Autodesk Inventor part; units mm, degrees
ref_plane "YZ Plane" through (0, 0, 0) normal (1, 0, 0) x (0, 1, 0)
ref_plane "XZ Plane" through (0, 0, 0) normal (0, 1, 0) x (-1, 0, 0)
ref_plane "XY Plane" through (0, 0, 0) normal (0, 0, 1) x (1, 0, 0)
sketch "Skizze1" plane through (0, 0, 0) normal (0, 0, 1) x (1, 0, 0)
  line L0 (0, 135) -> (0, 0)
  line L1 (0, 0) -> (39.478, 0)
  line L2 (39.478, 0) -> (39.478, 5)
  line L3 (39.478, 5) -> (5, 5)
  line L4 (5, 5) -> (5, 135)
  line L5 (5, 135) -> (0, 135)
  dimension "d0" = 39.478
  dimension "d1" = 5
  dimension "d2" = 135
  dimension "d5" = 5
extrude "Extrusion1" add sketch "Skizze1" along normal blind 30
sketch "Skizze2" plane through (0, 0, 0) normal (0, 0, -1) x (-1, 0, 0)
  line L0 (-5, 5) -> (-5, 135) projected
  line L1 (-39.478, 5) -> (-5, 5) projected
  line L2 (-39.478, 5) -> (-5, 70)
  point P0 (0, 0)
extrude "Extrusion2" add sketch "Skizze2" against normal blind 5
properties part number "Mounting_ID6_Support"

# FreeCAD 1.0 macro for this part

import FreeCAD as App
import Part
import Sketcher

V = App.Vector


def add_polygon(sketch, points):
    """Adds a closed chain of lines whose ends are joined by coincident constraints."""
    first, n = sketch.GeometryCount, len(points)
    for a, b in zip(points, points[1:] + points[:1]):
        sketch.addGeometry(Part.LineSegment(App.Vector(*a, 0), App.Vector(*b, 0)), False)
    for i in range(n):
        sketch.addConstraint(Sketcher.Constraint("Coincident", first + i, 2, first + (i + 1) % n, 1))

doc = App.newDocument("Part")
params = doc.addObject("Spreadsheet::Sheet", "Params")
for row, (alias, value) in enumerate([
    ("sketch1_width", "5 mm"),
    ("sketch1_height", "135 mm"),
    ("pad1_length", "30 mm"),
    ("sketch2_height", "65 mm"),
    ("pad2_length", "5 mm"),
], start=1):
    params.set(f"A{row}", alias)
    params.set(f"B{row}", "=" + value)
    params.setAlias(f"B{row}", alias)

body = doc.addObject("PartDesign::Body", "Body")

# Sketch on XY plane
sketch1 = body.newObject("Sketcher::SketchObject", "Sketch")
sketch1.AttachmentSupport = (doc.getObject("XY_Plane"), [""])
sketch1.MapMode = "FlatFace"
add_polygon(sketch1, [(5, 135), (0, 135), (0, 0), (39, 0), (39, 5), (5, 5)])  # lines 0-5
sketch1.addConstraint([
    Sketcher.Constraint("Horizontal", 0),
    Sketcher.Constraint("Vertical", 1),
    Sketcher.Constraint("Horizontal", 2),
    Sketcher.Constraint("Vertical", 3),
    Sketcher.Constraint("Horizontal", 4),
    Sketcher.Constraint("Vertical", 5),
    Sketcher.Constraint("Coincident", 1, 2, -1, 1),
    Sketcher.Constraint("Equal", 0, 3),
    Sketcher.Constraint("DistanceX", 0, 2, 0, 1, 5.0),
    Sketcher.Constraint("DistanceY", 1, 2, 1, 1, 135.0),
    Sketcher.Constraint("DistanceX", 2, 1, 2, 2, 39.478),
])
sketch1.setExpression("Constraints[14]", "Params.sketch1_width")
sketch1.setExpression("Constraints[15]", "Params.sketch1_height")
pad1 = body.newObject("PartDesign::Pad", "Pad")
pad1.Profile = sketch1
pad1.setExpression("Length", "Params.pad1_length")

# Sketch on XY plane
sketch2 = body.newObject("Sketcher::SketchObject", "Sketch001")
sketch2.AttachmentSupport = (doc.getObject("XY_Plane"), [""])
sketch2.MapMode = "FlatFace"
add_polygon(sketch2, [(39, 5), (5, 5), (5, 70)])  # lines 0-2
sketch2.addConstraint([
    Sketcher.Constraint("Horizontal", 0),
    Sketcher.Constraint("Vertical", 1),
    Sketcher.Constraint("DistanceY", 1, 1, 1, 2, 65.0),
    Sketcher.Constraint("DistanceX", -1, 1, 0, 2, 5.0),
    Sketcher.Constraint("DistanceY", -1, 1, 0, 2, 5.0),
    Sketcher.Constraint("DistanceX", 0, 2, 0, 1, 34.478),
])
sketch2.setExpression("Constraints[5]", "Params.sketch2_height")
pad2 = body.newObject("PartDesign::Pad", "Pad001")
pad2.Profile = sketch2
pad2.setExpression("Length", "Params.pad2_length")

doc.recompute()
